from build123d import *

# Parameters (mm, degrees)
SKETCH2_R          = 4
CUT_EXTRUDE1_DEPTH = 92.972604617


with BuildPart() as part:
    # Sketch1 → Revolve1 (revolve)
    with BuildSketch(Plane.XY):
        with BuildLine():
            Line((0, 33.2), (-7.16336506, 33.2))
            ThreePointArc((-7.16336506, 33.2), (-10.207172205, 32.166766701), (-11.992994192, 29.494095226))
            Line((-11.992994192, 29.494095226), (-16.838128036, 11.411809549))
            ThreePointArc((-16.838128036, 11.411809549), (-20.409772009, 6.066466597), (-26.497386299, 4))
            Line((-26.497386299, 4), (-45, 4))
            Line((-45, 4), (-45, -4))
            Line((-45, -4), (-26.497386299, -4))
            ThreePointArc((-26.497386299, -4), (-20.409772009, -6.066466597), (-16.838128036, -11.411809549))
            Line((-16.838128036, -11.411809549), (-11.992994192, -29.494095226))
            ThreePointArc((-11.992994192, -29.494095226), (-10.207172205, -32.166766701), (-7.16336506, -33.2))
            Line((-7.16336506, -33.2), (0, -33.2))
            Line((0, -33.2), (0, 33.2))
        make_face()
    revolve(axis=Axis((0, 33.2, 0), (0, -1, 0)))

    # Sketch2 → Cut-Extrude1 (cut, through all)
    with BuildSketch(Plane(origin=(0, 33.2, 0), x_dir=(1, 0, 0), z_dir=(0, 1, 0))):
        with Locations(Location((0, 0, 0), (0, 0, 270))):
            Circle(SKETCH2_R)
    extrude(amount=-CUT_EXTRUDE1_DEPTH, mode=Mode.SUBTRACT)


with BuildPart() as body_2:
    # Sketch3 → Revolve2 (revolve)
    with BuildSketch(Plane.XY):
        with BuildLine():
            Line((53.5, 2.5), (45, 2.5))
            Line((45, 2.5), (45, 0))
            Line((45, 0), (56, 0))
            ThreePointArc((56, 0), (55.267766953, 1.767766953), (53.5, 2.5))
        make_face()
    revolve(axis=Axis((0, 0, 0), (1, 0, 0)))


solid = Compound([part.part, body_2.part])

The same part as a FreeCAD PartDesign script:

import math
import FreeCAD as App
import Part
import Sketcher

V = App.Vector
Q = App.Units.Quantity

doc = App.newDocument("Part")
body = doc.addObject("PartDesign::Body", "Body")

# Sketch on XY plane
sketch1 = body.newObject("Sketcher::SketchObject", "Sketch")
sketch1.AttachmentSupport = (doc.getObject("XY_Plane"), [""])
sketch1.MapMode = "FlatFace"
sketch1.addGeometry([
    Part.LineSegment(V(0, 33, 0), V(-7, 33, 0)),  # 0
    Part.ArcOfCircle(Part.Circle(V(-7, 28, 0), V(0, 0, 1), 5), math.radians(90), math.radians(165)),  # 1
    Part.LineSegment(V(-12, 29, 0), V(-17, 11, 0)),  # 2
    Part.ArcOfCircle(Part.Circle(V(-26, 14, 0), V(0, 0, 1), 10), math.radians(-90), math.radians(-15)),  # 3
    Part.LineSegment(V(-26, 4, 0), V(-45, 4, 0)),  # 4
    Part.LineSegment(V(-45, 4, 0), V(-45, -4, 0)),  # 5
    Part.LineSegment(V(-45, -4, 0), V(-26, -4, 0)),  # 6
    Part.ArcOfCircle(Part.Circle(V(-26, -14, 0), V(0, 0, 1), 10), math.radians(15), math.radians(90)),  # 7
    Part.LineSegment(V(-17, -11, 0), V(-12, -29, 0)),  # 8
    Part.ArcOfCircle(Part.Circle(V(-7, -28, 0), V(0, 0, 1), 5), math.radians(-165), math.radians(-90)),  # 9
    Part.LineSegment(V(-7, -33, 0), V(0, -33, 0)),  # 10
    Part.LineSegment(V(0, -33, 0), V(0, 33, 0)),  # 11
], False)
sketch1.addConstraint([
    Sketcher.Constraint("Tangent", 0, 2, 1, 1),
    Sketcher.Constraint("Tangent", 1, 2, 2, 1),
    Sketcher.Constraint("Tangent", 2, 2, 3, 2),
    Sketcher.Constraint("Tangent", 3, 1, 4, 1),
    Sketcher.Constraint("Coincident", 4, 2, 5, 1),
    Sketcher.Constraint("Coincident", 5, 2, 6, 1),
    Sketcher.Constraint("Tangent", 6, 2, 7, 2),
    Sketcher.Constraint("Tangent", 7, 1, 8, 1),
    Sketcher.Constraint("Tangent", 8, 2, 9, 1),
    Sketcher.Constraint("Tangent", 9, 2, 10, 1),
    Sketcher.Constraint("Coincident", 10, 2, 11, 1),
    Sketcher.Constraint("Coincident", 11, 2, 0, 1),
    Sketcher.Constraint("Horizontal", 0),
    Sketcher.Constraint("Horizontal", 4),
    Sketcher.Constraint("Vertical", 5),
    Sketcher.Constraint("Horizontal", 6),
    Sketcher.Constraint("Horizontal", 10),
    Sketcher.Constraint("Vertical", 11),
    Sketcher.Constraint("Equal", 3, 7),
    Sketcher.Constraint("Equal", 1, 9),
    Sketcher.Constraint("Symmetric", 10, 2, 11, 2, -1, 1),
    Sketcher.Constraint("Symmetric", 3, 3, 7, 3, -1),
    Sketcher.Constraint("Vertical", 1, 3, 9, 3),
    Sketcher.Constraint("Radius", 1, Q("5 mm")),
    Sketcher.Constraint("Radius", 3, Q("10 mm")),
    Sketcher.Constraint("DistanceY", 5, 2, 5, 1, Q("8 mm")),
    Sketcher.Constraint("Angle", 2, Q("-105 deg")),
    Sketcher.Constraint("DistanceY", 11, 1, 11, 2, Q("66.4 mm")),
    Sketcher.Constraint("DistanceX", 4, 2, -1, 1, Q("45 mm")),
    Sketcher.Constraint("DistanceX", 0, 2, 0, 1, Q("7.163365 mm")),
])
revolution = body.newObject("PartDesign::Revolution", "Revolution")
revolution.Profile = sketch1
revolution.ReferenceAxis = (sketch1, ["V_Axis"])
revolution.Angle = 360

# Sketch on XZ plane
sketch2 = body.newObject("Sketcher::SketchObject", "Sketch001")
sketch2.AttachmentSupport = (doc.getObject("XZ_Plane"), [""])
sketch2.MapMode = "FlatFace"
sketch2.AttachmentOffset = App.Placement(V(0, 0, -33.2), App.Rotation())
sketch2.addGeometry(Part.Circle(V(0, 0, 0), V(0, 0, 1), 4), False)
sketch2.addConstraint([
    Sketcher.Constraint("Coincident", 0, 3, -1, 1),
    Sketcher.Constraint("Diameter", 0, Q("8 mm")),
])
pocket1 = body.newObject("PartDesign::Pocket", "Pocket")
pocket1.Profile = sketch2
pocket1.Type = "ThroughAll"
pocket1.Reversed = True
body2 = doc.addObject("PartDesign::Body", "Body001")

# Sketch on XY plane
sketch3 = body2.newObject("Sketcher::SketchObject", "Sketch002")
sketch3.AttachmentSupport = (doc.getObject("XY_Plane001"), [""])
sketch3.MapMode = "FlatFace"
sketch3.addGeometry([
    Part.LineSegment(V(53.5, 2.5, 0), V(45, 2.5, 0)),
    Part.LineSegment(V(45, 2.5, 0), V(45, 0, 0)),
    Part.LineSegment(V(45, 0, 0), V(56, 0, 0)),
    Part.ArcOfCircle(Part.Circle(V(53.5, 0, 0), V(0, 0, 1), 2.5), math.radians(0), math.radians(90)),
], False)
sketch3.addConstraint([
    Sketcher.Constraint("Coincident", 0, 2, 1, 1),
    Sketcher.Constraint("Coincident", 1, 2, 2, 1),
    Sketcher.Constraint("Coincident", 2, 2, 3, 1),
    Sketcher.Constraint("Tangent", 3, 2, 0, 1),
    Sketcher.Constraint("Horizontal", 0),
    Sketcher.Constraint("Vertical", 1),
    Sketcher.Constraint("Horizontal", 2),
    Sketcher.Constraint("PointOnObject", 3, 3, -1),
    Sketcher.Constraint("PointOnObject", 1, 2, -1),
    Sketcher.Constraint("Radius", 3, Q("2.5 mm")),
    Sketcher.Constraint("DistanceX", 2, 1, 2, 2, Q("11 mm")),
    Sketcher.Constraint("DistanceX", -1, 1, 0, 2, Q("45 mm")),
])
revolution2 = body2.newObject("PartDesign::Revolution", "Revolution001")
revolution2.Profile = sketch3
revolution2.ReferenceAxis = (sketch3, ["H_Axis"])
revolution2.Angle = 360

doc.recompute()
